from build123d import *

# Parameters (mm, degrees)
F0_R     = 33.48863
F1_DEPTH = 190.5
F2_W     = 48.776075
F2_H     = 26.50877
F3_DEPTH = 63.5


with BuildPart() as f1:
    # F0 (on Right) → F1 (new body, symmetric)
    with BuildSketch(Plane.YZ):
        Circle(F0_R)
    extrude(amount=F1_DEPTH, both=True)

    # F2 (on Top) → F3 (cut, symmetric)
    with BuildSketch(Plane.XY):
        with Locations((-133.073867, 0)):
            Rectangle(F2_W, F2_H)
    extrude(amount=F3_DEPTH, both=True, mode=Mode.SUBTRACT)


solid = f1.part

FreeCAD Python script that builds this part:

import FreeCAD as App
import Part
import Sketcher

V = App.Vector
Q = App.Units.Quantity


def add_polygon(sketch, points):
    """Adds a closed chain of lines whose ends are joined by coincident constraints."""
    first, n = sketch.GeometryCount, len(points)
    for a, b in zip(points, points[1:] + points[:1]):
        sketch.addGeometry(Part.LineSegment(App.Vector(*a, 0), App.Vector(*b, 0)), False)
    for i in range(n):
        sketch.addConstraint(Sketcher.Constraint("Coincident", first + i, 2, first + (i + 1) % n, 1))

doc = App.newDocument("Part")
body = doc.addObject("PartDesign::Body", "Body")

sketch1 = body.newObject("Sketcher::SketchObject", "Sketch")
sketch1.AttachmentSupport = (doc.getObject("YZ_Plane"), [""])
sketch1.MapMode = "FlatFace"
sketch1.addGeometry(Part.Circle(V(0, 0, 0), V(0, 0, 1), 33.48863), False)
sketch1.addConstraint(Sketcher.Constraint("Coincident", 0, 3, -1, 1))
sketch1.addConstraint(Sketcher.Constraint("Diameter", 0, Q("2.6369 in")))
pad1 = body.newObject("PartDesign::Pad", "Pad")
pad1.Profile = sketch1
pad1.Length = Q("15 in")
pad1.Midplane = True

sketch2 = body.newObject("Sketcher::SketchObject", "Sketch001")
sketch2.AttachmentSupport = (doc.getObject("XY_Plane"), [""])
sketch2.MapMode = "FlatFace"
add_polygon(sketch2, [(-157.461905, 13.254385), (-157.461905, -13.254385), (-108.685829, -13.254385), (-108.685829, 13.254385)])
sketch2.addConstraint(Sketcher.Constraint("Vertical", 0))
sketch2.addConstraint(Sketcher.Constraint("Horizontal", 1))
sketch2.addConstraint(Sketcher.Constraint("Vertical", 2))
sketch2.addConstraint(Sketcher.Constraint("Horizontal", 3))
sketch2.addConstraint(Sketcher.Constraint("DistanceY", 0, 2, 0, 1, 26.50877))
sketch2.addConstraint(Sketcher.Constraint("DistanceX", 1, 1, 1, 2, 48.776075))
sketch2.addConstraint(Sketcher.Constraint("DistanceX", 1, 2, -1, 1, 108.685829))
sketch2.addConstraint(Sketcher.Constraint("DistanceY", 0, 2, -1, 1, 13.254385))
pocket1 = body.newObject("PartDesign::Pocket", "Pocket")
pocket1.Profile = sketch2
pocket1.Length = Q("5 in")
pocket1.Midplane = True

doc.recompute()
